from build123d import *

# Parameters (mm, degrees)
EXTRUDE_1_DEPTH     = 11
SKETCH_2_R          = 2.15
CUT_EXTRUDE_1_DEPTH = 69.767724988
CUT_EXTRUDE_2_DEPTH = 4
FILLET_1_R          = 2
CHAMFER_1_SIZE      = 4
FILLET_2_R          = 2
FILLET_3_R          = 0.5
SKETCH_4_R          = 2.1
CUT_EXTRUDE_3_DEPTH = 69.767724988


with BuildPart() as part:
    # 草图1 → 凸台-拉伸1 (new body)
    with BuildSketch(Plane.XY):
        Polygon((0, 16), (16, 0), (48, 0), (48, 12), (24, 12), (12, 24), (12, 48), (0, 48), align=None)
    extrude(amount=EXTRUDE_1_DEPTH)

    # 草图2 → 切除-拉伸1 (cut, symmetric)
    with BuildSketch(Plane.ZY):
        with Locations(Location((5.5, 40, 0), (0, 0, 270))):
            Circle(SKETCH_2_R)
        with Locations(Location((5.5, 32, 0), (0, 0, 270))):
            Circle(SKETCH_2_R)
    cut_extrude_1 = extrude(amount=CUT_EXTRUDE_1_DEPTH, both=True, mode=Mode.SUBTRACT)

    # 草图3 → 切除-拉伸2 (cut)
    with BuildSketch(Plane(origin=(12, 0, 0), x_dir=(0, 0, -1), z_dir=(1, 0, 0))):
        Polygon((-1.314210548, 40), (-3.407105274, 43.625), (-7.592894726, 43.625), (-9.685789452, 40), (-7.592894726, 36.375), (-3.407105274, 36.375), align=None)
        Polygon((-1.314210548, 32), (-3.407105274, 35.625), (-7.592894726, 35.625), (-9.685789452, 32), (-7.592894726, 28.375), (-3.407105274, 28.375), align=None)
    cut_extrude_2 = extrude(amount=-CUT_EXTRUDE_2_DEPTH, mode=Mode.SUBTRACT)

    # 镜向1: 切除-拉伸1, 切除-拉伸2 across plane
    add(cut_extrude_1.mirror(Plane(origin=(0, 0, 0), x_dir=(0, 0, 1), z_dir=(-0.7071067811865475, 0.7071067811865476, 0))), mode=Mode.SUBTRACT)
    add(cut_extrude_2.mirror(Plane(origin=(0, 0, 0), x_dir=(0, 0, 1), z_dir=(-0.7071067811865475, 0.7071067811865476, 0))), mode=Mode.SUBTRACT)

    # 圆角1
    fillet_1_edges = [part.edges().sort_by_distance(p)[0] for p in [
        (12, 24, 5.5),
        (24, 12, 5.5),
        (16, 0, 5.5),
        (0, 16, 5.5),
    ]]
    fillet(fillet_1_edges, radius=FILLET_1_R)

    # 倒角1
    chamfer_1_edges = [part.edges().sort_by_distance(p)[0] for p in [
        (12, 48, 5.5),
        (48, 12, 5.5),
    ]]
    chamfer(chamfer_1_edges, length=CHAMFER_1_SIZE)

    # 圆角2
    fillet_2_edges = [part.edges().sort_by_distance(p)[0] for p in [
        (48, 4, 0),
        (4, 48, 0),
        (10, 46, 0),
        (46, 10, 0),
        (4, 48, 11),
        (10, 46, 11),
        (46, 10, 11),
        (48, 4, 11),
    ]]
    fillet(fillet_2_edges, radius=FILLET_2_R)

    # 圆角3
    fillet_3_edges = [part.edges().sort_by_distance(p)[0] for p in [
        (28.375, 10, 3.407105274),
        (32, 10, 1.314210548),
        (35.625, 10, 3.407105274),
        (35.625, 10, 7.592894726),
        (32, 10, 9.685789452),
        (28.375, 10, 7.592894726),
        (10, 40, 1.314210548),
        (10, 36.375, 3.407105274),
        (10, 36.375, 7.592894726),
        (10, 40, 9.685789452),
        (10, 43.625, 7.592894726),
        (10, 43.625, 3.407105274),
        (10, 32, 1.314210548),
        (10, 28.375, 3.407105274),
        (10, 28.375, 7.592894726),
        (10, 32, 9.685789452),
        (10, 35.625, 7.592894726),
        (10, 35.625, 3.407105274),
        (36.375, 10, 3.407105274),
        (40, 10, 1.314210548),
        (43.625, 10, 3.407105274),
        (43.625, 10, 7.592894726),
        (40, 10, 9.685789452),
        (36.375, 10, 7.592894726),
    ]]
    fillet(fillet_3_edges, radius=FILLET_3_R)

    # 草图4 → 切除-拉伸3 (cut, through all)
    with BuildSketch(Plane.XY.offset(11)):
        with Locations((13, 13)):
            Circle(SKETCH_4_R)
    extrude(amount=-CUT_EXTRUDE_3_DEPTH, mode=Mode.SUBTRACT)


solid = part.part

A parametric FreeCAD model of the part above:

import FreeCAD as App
import Part
import Sketcher

V = App.Vector
Q = App.Units.Quantity


def edges_at(feature, points):
    """Names of the edges that pass closest to the given points."""
    edges = feature.Shape.Edges
    near = lambda p: min(range(len(edges)), key=lambda i: edges[i].distToShape(Part.Vertex(*p))[0])
    return sorted({f"Edge{near(p) + 1}" for p in points})


def add_polygon(sketch, points):
    """Adds a closed chain of lines whose ends are joined by coincident constraints."""
    first, n = sketch.GeometryCount, len(points)
    for a, b in zip(points, points[1:] + points[:1]):
        sketch.addGeometry(Part.LineSegment(App.Vector(*a, 0), App.Vector(*b, 0)), False)
    for i in range(n):
        sketch.addConstraint(Sketcher.Constraint("Coincident", first + i, 2, first + (i + 1) % n, 1))

doc = App.newDocument("Part")
body = doc.addObject("PartDesign::Body", "Body")

# Sketch on XY plane
sketch1 = body.newObject("Sketcher::SketchObject", "Sketch")
sketch1.AttachmentSupport = (doc.getObject("XY_Plane"), [""])
sketch1.MapMode = "FlatFace"
add_polygon(sketch1, [(0, 16), (16, 0), (48, 0), (48, 12), (24, 12), (12, 24), (12, 48), (0, 48)])  # lines 0-7
sketch1.addConstraint(Sketcher.Constraint("Horizontal", 1))
sketch1.addConstraint(Sketcher.Constraint("Vertical", 2))
sketch1.addConstraint(Sketcher.Constraint("Horizontal", 3))
sketch1.addConstraint(Sketcher.Constraint("Vertical", 5))
sketch1.addConstraint(Sketcher.Constraint("Horizontal", 6))
sketch1.addConstraint(Sketcher.Constraint("Vertical", 7))
sketch1.addConstraint(Sketcher.Constraint("PointOnObject", 0, 2, -1))
sketch1.addConstraint(Sketcher.Constraint("PointOnObject", 6, 2, -2))
sketch1.addConstraint(Sketcher.Constraint("Parallel", 0, 4))
sketch1.addConstraint(Sketcher.Constraint("Equal", 6, 2))
sketch1.addConstraint(Sketcher.Constraint("Equal", 3, 5))
sketch1.addConstraint(Sketcher.Constraint("Equal", 1, 7))
sketch1.addConstraint(Sketcher.Constraint("DistanceX", 1, 1, 1, 2, Q("32 mm")))
sketch1.addConstraint(Sketcher.Constraint("DistanceX", 3, 2, 3, 1, Q("24 mm")))
sketch1.addConstraint(Sketcher.Constraint("DistanceX", 6, 2, 6, 1, Q("12 mm")))
sketch1.addConstraint(Sketcher.Constraint("DistanceX", -1, 1, 0, 2, Q("16 mm")))
pad1 = body.newObject("PartDesign::Pad", "Pad")
pad1.Profile = sketch1
pad1.Length = 11

# Sketch on YZ plane
sketch2 = body.newObject("Sketcher::SketchObject", "Sketch001")
sketch2.AttachmentSupport = (doc.getObject("YZ_Plane"), [""])
sketch2.MapMode = "FlatFace"
sketch2.addGeometry(Part.Circle(V(40, 5.5, 0), V(0, 0, 1), 2.1), False)
sketch2.addGeometry(Part.Circle(V(32, 5.5, 0), V(0, 0, 1), 2.1), False)
sketch2.addConstraint(Sketcher.Constraint("Equal", 0, 1))
sketch2.addConstraint(Sketcher.Constraint("Horizontal", 0, 3, 1, 3))
sketch2.addConstraint(Sketcher.Constraint("Diameter", 0, Q("4.3 mm")))
sketch2.addConstraint(Sketcher.Constraint("DistanceX", -1, 1, 0, 3, Q("40 mm")))
sketch2.addConstraint(Sketcher.Constraint("DistanceX", -1, 1, 1, 3, Q("32 mm")))
sketch2.addConstraint(Sketcher.Constraint("DistanceY", -1, 1, 0, 3, Q("5.5 mm")))
pocket1 = body.newObject("PartDesign::Pocket", "Pocket")
pocket1.Profile = sketch2
pocket1.Length = 139.53545
pocket1.Midplane = True

# Sketch on YZ plane
sketch3 = body.newObject("Sketcher::SketchObject", "Sketch002")
sketch3.AttachmentSupport = (doc.getObject("YZ_Plane"), [""])
sketch3.MapMode = "FlatFace"
sketch3.AttachmentOffset = App.Placement(V(0, 0, 12), App.Rotation())
add_polygon(sketch3, [(40, 1.3), (43.6, 3.4), (43.6, 7.6), (40, 9.7), (36.4, 7.6), (36.4, 3.4)])  # lines 0-5
add_polygon(sketch3, [(32, 1.3), (35.6, 3.4), (35.6, 7.6), (32, 9.7), (28.4, 7.6), (28.4, 3.4)])  # lines 6-11
sketch3.addConstraint(Sketcher.Constraint("Vertical", 1))
sketch3.addConstraint(Sketcher.Constraint("Vertical", 4))
sketch3.addConstraint(Sketcher.Constraint("Vertical", 7))
sketch3.addConstraint(Sketcher.Constraint("Vertical", 10))
sketch3.addConstraint(Sketcher.Constraint("Parallel", 0, 3))
sketch3.addConstraint(Sketcher.Constraint("Parallel", 2, 5))
sketch3.addConstraint(Sketcher.Constraint("Parallel", 3, 6))
sketch3.addConstraint(Sketcher.Constraint("Parallel", 5, 8))
sketch3.addConstraint(Sketcher.Constraint("Parallel", 6, 9))
sketch3.addConstraint(Sketcher.Constraint("Parallel", 8, 11))
sketch3.addConstraint(Sketcher.Constraint("Horizontal", 1, 2, 3, 2))
sketch3.addConstraint(Sketcher.Constraint("Horizontal", 0, 2, 4, 2))
sketch3.addConstraint(Sketcher.Constraint("Horizontal", 4, 2, 6, 2))
sketch3.addConstraint(Sketcher.Constraint("Horizontal", 3, 2, 7, 2))
sketch3.addConstraint(Sketcher.Constraint("Horizontal", 2, 2, 8, 2))
sketch3.addConstraint(Sketcher.Constraint("Horizontal", 7, 2, 9, 2))
sketch3.addConstraint(Sketcher.Constraint("Horizontal", 6, 2, 10, 2))
sketch3.addConstraint(Sketcher.Constraint("Vertical", 2, 2, 5, 2))
sketch3.addConstraint(Sketcher.Constraint("Angle", 0, Q("30 deg")))
sketch3.addConstraint(Sketcher.Constraint("DistanceX", -1, 1, 2, 2, Q("40 mm")))
sketch3.addConstraint(Sketcher.Constraint("DistanceX", -1, 1, 8, 2, Q("32 mm")))
sketch3.addConstraint(Sketcher.Constraint("DistanceX", 3, 2, 1, 2, Q("7.25 mm")))
sketch3.addConstraint(Sketcher.Constraint("DistanceY", 1, 1, 1, 2, Q("4.185789 mm")))
sketch3.addConstraint(Sketcher.Constraint("DistanceY", -1, 1, 2, 2, Q("9.685789 mm")))
pocket2 = body.newObject("PartDesign::Pocket", "Pocket001")
pocket2.Profile = sketch3
pocket2.Length = 4
doc.recompute()

datumplane = body.newObject("PartDesign::Plane", "DatumPlane")
datumplane.Placement = App.Placement(V(0, 0, 0), App.Rotation(V(0.707106781, 0.707106781, 0), V(0, 0, -1), V(-0.707106781, 0.707106781, 0), "ZXY"))
mirrored = body.newObject("PartDesign::Mirrored", "Mirrored")
mirrored.Originals = [pocket1, pocket2]
mirrored.MirrorPlane = (datumplane, [""])
body.Tip = mirrored
doc.recompute()

fillet = body.newObject("PartDesign::Fillet", "Fillet")
fillet.Base = (mirrored, edges_at(mirrored, [
    (12, 24, 5.5),
    (24, 12, 5.5),
    (16, 0, 5.5),
    (0, 16, 5.5),
]))
fillet.Radius = 2
doc.recompute()

chamfer = body.newObject("PartDesign::Chamfer", "Chamfer")
chamfer.Base = (fillet, edges_at(fillet, [(12, 48, 5.5), (48, 12, 5.5)]))
chamfer.Size = 4
doc.recompute()

fillet2 = body.newObject("PartDesign::Fillet", "Fillet001")
fillet2.Base = (chamfer, edges_at(chamfer, [
    (48, 4, 0),
    (4, 48, 0),
    (10, 46, 0),
    (46, 10, 0),
    (4, 48, 11),
    (10, 46, 11),
    (46, 10, 11),
    (48, 4, 11),
]))
fillet2.Radius = 2
doc.recompute()

fillet3 = body.newObject("PartDesign::Fillet", "Fillet002")
fillet3.Base = (fillet2, edges_at(fillet2, [
    (28.375, 10, 3.407),
    (32, 10, 1.314),
    (35.625, 10, 3.407),
    (35.625, 10, 7.593),
    (32, 10, 9.686),
    (28.375, 10, 7.593),
    (10, 40, 1.314),
    (10, 36.375, 3.407),
    (10, 36.375, 7.593),
    (10, 40, 9.686),
    (10, 43.625, 7.593),
    (10, 43.625, 3.407),
    (10, 32, 1.314),
    (10, 28.375, 3.407),
    (10, 28.375, 7.593),
    (10, 32, 9.686),
    (10, 35.625, 7.593),
    (10, 35.625, 3.407),
    (36.375, 10, 3.407),
    (40, 10, 1.314),
    (43.625, 10, 3.407),
    (43.625, 10, 7.593),
    (40, 10, 9.686),
    (36.375, 10, 7.593),
]))
fillet3.Radius = 0.5

# Sketch on XY plane
sketch4 = body.newObject("Sketcher::SketchObject", "Sketch003")
sketch4.AttachmentSupport = (doc.getObject("XY_Plane"), [""])
sketch4.MapMode = "FlatFace"
sketch4.AttachmentOffset = App.Placement(V(0, 0, 11), App.Rotation())
sketch4.addGeometry(Part.Circle(V(13, 13, 0), V(0, 0, 1), 2.1), False)
sketch4.addConstraint(Sketcher.Constraint("Diameter", 0, Q("4.2 mm")))
sketch4.addConstraint(Sketcher.Constraint("DistanceX", -1, 1, 0, 3, Q("13 mm")))
sketch4.addConstraint(Sketcher.Constraint("DistanceY", -1, 1, 0, 3, Q("13 mm")))
pocket3 = body.newObject("PartDesign::Pocket", "Pocket002")
pocket3.Profile = sketch4
pocket3.Type = "ThroughAll"

doc.recompute()
